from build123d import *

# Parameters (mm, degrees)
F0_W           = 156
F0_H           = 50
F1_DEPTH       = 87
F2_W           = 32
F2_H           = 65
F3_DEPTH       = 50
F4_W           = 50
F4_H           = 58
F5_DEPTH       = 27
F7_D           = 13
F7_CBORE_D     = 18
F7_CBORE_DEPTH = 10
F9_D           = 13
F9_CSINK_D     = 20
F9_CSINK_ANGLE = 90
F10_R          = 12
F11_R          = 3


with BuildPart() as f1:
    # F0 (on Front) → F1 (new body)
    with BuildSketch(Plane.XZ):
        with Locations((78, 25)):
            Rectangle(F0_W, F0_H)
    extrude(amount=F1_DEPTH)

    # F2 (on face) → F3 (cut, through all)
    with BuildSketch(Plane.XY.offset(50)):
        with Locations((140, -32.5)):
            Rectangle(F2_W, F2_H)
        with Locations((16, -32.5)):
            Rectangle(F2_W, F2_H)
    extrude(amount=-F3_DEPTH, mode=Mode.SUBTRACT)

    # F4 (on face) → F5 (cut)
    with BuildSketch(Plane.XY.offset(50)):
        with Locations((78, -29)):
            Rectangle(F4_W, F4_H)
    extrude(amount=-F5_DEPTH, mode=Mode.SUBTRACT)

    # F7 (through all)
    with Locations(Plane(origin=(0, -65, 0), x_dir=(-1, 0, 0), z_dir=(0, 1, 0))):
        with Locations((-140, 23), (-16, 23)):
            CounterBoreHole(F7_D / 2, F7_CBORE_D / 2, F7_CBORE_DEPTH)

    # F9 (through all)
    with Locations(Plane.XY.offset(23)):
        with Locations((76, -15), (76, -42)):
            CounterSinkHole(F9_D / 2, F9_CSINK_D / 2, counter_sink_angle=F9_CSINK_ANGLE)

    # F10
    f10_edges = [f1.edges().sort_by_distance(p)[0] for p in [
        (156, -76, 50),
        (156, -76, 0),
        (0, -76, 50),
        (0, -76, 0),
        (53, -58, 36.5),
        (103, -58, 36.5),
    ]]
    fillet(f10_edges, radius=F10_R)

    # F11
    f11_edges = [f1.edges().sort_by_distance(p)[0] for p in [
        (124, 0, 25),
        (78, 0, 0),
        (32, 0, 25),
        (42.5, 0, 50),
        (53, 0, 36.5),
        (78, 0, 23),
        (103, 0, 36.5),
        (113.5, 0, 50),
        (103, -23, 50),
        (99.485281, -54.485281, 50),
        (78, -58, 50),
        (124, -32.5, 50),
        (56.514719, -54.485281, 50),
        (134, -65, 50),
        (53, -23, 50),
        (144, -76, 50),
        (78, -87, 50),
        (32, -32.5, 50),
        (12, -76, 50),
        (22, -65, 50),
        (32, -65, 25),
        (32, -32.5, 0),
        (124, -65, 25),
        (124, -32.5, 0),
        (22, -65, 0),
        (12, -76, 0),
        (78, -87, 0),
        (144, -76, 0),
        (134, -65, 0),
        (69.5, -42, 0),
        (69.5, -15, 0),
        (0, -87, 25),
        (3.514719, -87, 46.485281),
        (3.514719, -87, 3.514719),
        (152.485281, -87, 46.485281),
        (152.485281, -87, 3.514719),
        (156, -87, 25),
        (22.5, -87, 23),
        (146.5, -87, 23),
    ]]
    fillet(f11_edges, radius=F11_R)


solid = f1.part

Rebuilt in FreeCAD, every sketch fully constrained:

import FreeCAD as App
import Part
import Sketcher

V = App.Vector


def edges_at(feature, points):
    """Names of the edges that pass closest to the given points."""
    edges = feature.Shape.Edges
    near = lambda p: min(range(len(edges)), key=lambda i: edges[i].distToShape(Part.Vertex(*p))[0])
    return sorted({f"Edge{near(p) + 1}" for p in points})


def add_polygon(sketch, points):
    """Adds a closed chain of lines whose ends are joined by coincident constraints."""
    first, n = sketch.GeometryCount, len(points)
    for a, b in zip(points, points[1:] + points[:1]):
        sketch.addGeometry(Part.LineSegment(App.Vector(*a, 0), App.Vector(*b, 0)), False)
    for i in range(n):
        sketch.addConstraint(Sketcher.Constraint("Coincident", first + i, 2, first + (i + 1) % n, 1))

doc = App.newDocument("Part")
body = doc.addObject("PartDesign::Body", "Body")

# Sketch on XZ plane
sketch1 = body.newObject("Sketcher::SketchObject", "Sketch")
sketch1.AttachmentSupport = (doc.getObject("XZ_Plane"), [""])
sketch1.MapMode = "FlatFace"
add_polygon(sketch1, [(0, 50), (0, 0), (156, 0), (156, 50)])  # lines 0-3
sketch1.addConstraint([
    Sketcher.Constraint("Vertical", 0),
    Sketcher.Constraint("Horizontal", 1),
    Sketcher.Constraint("Vertical", 2),
    Sketcher.Constraint("Horizontal", 3),
    Sketcher.Constraint("Coincident", 0, 2, -1, 1),
    Sketcher.Constraint("DistanceX", 1, 1, 1, 2, 156.0),
    Sketcher.Constraint("DistanceY", 0, 2, 0, 1, 50.0),
])
pad1 = body.newObject("PartDesign::Pad", "Pad")
pad1.Profile = sketch1
pad1.Length = 87

# Sketch on XY plane
sketch2 = body.newObject("Sketcher::SketchObject", "Sketch001")
sketch2.AttachmentSupport = (doc.getObject("XY_Plane"), [""])
sketch2.MapMode = "FlatFace"
sketch2.AttachmentOffset = App.Placement(V(0, 0, 50), App.Rotation())
add_polygon(sketch2, [(124, 0), (124, -65), (156, -65), (156, 0)])  # lines 0-3
add_polygon(sketch2, [(0, 0), (0, -65), (32, -65), (32, 0)])  # lines 4-7
sketch2.addConstraint([
    Sketcher.Constraint("Vertical", 0),
    Sketcher.Constraint("Horizontal", 1),
    Sketcher.Constraint("Vertical", 2),
    Sketcher.Constraint("Horizontal", 3),
    Sketcher.Constraint("Vertical", 4),
    Sketcher.Constraint("Horizontal", 5),
    Sketcher.Constraint("Vertical", 6),
    Sketcher.Constraint("Horizontal", 7),
    Sketcher.Constraint("Coincident", 7, 2, -1, 1),
    Sketcher.Constraint("PointOnObject", 2, 2, -1),
    Sketcher.Constraint("Horizontal", 1, 2, 4, 2),
    Sketcher.Constraint("Equal", 3, 5),
    Sketcher.Constraint("DistanceX", 1, 1, 1, 2, 32.0),
    Sketcher.Constraint("DistanceY", 0, 2, 0, 1, 65.0),
    Sketcher.Constraint("DistanceX", -1, 1, 0, 2, 124.0),
])
pocket1 = body.newObject("PartDesign::Pocket", "Pocket")
pocket1.Profile = sketch2
pocket1.Type = "ThroughAll"

# Sketch on XY plane
sketch3 = body.newObject("Sketcher::SketchObject", "Sketch002")
sketch3.AttachmentSupport = (doc.getObject("XY_Plane"), [""])
sketch3.MapMode = "FlatFace"
sketch3.AttachmentOffset = App.Placement(V(0, 0, 50), App.Rotation())
add_polygon(sketch3, [(53, 0), (53, -58), (103, -58), (103, 0)])  # lines 0-3
sketch3.addConstraint([
    Sketcher.Constraint("Vertical", 0),
    Sketcher.Constraint("Horizontal", 1),
    Sketcher.Constraint("Vertical", 2),
    Sketcher.Constraint("Horizontal", 3),
    Sketcher.Constraint("PointOnObject", 2, 2, -1),
    Sketcher.Constraint("DistanceX", 1, 1, 1, 2, 50.0),
    Sketcher.Constraint("DistanceY", 0, 2, 0, 1, 58.0),
    Sketcher.Constraint("DistanceX", -1, 1, 0, 2, 53.0),
])
pocket2 = body.newObject("PartDesign::Pocket", "Pocket001")
pocket2.Profile = sketch3
pocket2.Length = 27

# Sketch on XZ plane
sketch4 = body.newObject("Sketcher::SketchObject", "Sketch003")
sketch4.AttachmentSupport = (doc.getObject("XZ_Plane"), [""])
sketch4.MapMode = "FlatFace"
sketch4.AttachmentOffset = App.Placement(V(0, 0, 65), App.Rotation())
sketch4.addGeometry([
    Part.Circle(V(140, 23, 0), V(0, 0, 1), 6.5),
    Part.Circle(V(16, 23, 0), V(0, 0, 1), 6.5),
], False)
sketch4.addConstraint([
    Sketcher.Constraint("Equal", 0, 1),
    Sketcher.Constraint("Horizontal", 0, 3, 1, 3),
    Sketcher.Constraint("Diameter", 0, 13.0),
    Sketcher.Constraint("DistanceX", -1, 1, 0, 3, 140.0),
    Sketcher.Constraint("DistanceY", -1, 1, 0, 3, 23.0),
    Sketcher.Constraint("DistanceX", -1, 1, 1, 3, 16.0),
])
doc.recompute()
hole = body.newObject("PartDesign::Hole", "Hole")
hole.Profile = sketch4
hole.ThreadType = "None"
hole.Diameter = 13
hole.DepthType = "ThroughAll"
hole.HoleCutType = "Counterbore"
hole.HoleCutDiameter = 18
hole.HoleCutDepth = 10
hole.Reversed = True

# Sketch on XY plane
sketch5 = body.newObject("Sketcher::SketchObject", "Sketch004")
sketch5.AttachmentSupport = (doc.getObject("XY_Plane"), [""])
sketch5.MapMode = "FlatFace"
sketch5.AttachmentOffset = App.Placement(V(0, 0, 23), App.Rotation())
sketch5.addGeometry([
    Part.Circle(V(76, -15, 0), V(0, 0, 1), 6.5),
    Part.Circle(V(76, -42, 0), V(0, 0, 1), 6.5),
], False)
sketch5.addConstraint([
    Sketcher.Constraint("Equal", 0, 1),
    Sketcher.Constraint("Vertical", 0, 3, 1, 3),
    Sketcher.Constraint("Diameter", 0, 13.0),
    Sketcher.Constraint("DistanceX", -1, 1, 0, 3, 76.0),
    Sketcher.Constraint("DistanceY", 0, 3, -1, 1, 15.0),
    Sketcher.Constraint("DistanceY", 1, 3, -1, 1, 42.0),
])
doc.recompute()
hole2 = body.newObject("PartDesign::Hole", "Hole001")
hole2.Profile = sketch5
hole2.ThreadType = "None"
hole2.Diameter = 13
hole2.DepthType = "ThroughAll"
hole2.HoleCutType = "Countersink"
hole2.HoleCutDiameter = 20
hole2.HoleCutCountersinkAngle = 90
doc.recompute()

fillet = body.newObject("PartDesign::Fillet", "Fillet")
fillet.Base = (hole2, edges_at(hole2, [
    (156, -76, 50),
    (156, -76, 0),
    (0, -76, 50),
    (0, -76, 0),
    (53, -58, 36.5),
    (103, -58, 36.5),
]))
fillet.Radius = 12
doc.recompute()

fillet2 = body.newObject("PartDesign::Fillet", "Fillet001")
fillet2.Base = (fillet, edges_at(fillet, [
    (124, 0, 25),
    (78, 0, 0),
    (32, 0, 25),
    (42.5, 0, 50),
    (53, 0, 36.5),
    (78, 0, 23),
    (103, 0, 36.5),
    (113.5, 0, 50),
    (103, -23, 50),
    (99.485, -54.485, 50),
    (78, -58, 50),
    (124, -32.5, 50),
    (56.515, -54.485, 50),
    (134, -65, 50),
    (53, -23, 50),
    (144, -76, 50),
    (78, -87, 50),
    (32, -32.5, 50),
    (12, -76, 50),
    (22, -65, 50),
    (32, -65, 25),
    (32, -32.5, 0),
    (124, -65, 25),
    (124, -32.5, 0),
    (22, -65, 0),
    (12, -76, 0),
    (78, -87, 0),
    (144, -76, 0),
    (134, -65, 0),
    (82.5, -42, 0),
    (82.5, -15, 0),
    (0, -87, 25),
    (3.515, -87, 46.485),
    (3.515, -87, 3.515),
    (152.485, -87, 46.485),
    (152.485, -87, 3.515),
    (156, -87, 25),
    (9.5, -87, 23),
    (133.5, -87, 23),
]))
fillet2.Radius = 3

doc.recompute()
